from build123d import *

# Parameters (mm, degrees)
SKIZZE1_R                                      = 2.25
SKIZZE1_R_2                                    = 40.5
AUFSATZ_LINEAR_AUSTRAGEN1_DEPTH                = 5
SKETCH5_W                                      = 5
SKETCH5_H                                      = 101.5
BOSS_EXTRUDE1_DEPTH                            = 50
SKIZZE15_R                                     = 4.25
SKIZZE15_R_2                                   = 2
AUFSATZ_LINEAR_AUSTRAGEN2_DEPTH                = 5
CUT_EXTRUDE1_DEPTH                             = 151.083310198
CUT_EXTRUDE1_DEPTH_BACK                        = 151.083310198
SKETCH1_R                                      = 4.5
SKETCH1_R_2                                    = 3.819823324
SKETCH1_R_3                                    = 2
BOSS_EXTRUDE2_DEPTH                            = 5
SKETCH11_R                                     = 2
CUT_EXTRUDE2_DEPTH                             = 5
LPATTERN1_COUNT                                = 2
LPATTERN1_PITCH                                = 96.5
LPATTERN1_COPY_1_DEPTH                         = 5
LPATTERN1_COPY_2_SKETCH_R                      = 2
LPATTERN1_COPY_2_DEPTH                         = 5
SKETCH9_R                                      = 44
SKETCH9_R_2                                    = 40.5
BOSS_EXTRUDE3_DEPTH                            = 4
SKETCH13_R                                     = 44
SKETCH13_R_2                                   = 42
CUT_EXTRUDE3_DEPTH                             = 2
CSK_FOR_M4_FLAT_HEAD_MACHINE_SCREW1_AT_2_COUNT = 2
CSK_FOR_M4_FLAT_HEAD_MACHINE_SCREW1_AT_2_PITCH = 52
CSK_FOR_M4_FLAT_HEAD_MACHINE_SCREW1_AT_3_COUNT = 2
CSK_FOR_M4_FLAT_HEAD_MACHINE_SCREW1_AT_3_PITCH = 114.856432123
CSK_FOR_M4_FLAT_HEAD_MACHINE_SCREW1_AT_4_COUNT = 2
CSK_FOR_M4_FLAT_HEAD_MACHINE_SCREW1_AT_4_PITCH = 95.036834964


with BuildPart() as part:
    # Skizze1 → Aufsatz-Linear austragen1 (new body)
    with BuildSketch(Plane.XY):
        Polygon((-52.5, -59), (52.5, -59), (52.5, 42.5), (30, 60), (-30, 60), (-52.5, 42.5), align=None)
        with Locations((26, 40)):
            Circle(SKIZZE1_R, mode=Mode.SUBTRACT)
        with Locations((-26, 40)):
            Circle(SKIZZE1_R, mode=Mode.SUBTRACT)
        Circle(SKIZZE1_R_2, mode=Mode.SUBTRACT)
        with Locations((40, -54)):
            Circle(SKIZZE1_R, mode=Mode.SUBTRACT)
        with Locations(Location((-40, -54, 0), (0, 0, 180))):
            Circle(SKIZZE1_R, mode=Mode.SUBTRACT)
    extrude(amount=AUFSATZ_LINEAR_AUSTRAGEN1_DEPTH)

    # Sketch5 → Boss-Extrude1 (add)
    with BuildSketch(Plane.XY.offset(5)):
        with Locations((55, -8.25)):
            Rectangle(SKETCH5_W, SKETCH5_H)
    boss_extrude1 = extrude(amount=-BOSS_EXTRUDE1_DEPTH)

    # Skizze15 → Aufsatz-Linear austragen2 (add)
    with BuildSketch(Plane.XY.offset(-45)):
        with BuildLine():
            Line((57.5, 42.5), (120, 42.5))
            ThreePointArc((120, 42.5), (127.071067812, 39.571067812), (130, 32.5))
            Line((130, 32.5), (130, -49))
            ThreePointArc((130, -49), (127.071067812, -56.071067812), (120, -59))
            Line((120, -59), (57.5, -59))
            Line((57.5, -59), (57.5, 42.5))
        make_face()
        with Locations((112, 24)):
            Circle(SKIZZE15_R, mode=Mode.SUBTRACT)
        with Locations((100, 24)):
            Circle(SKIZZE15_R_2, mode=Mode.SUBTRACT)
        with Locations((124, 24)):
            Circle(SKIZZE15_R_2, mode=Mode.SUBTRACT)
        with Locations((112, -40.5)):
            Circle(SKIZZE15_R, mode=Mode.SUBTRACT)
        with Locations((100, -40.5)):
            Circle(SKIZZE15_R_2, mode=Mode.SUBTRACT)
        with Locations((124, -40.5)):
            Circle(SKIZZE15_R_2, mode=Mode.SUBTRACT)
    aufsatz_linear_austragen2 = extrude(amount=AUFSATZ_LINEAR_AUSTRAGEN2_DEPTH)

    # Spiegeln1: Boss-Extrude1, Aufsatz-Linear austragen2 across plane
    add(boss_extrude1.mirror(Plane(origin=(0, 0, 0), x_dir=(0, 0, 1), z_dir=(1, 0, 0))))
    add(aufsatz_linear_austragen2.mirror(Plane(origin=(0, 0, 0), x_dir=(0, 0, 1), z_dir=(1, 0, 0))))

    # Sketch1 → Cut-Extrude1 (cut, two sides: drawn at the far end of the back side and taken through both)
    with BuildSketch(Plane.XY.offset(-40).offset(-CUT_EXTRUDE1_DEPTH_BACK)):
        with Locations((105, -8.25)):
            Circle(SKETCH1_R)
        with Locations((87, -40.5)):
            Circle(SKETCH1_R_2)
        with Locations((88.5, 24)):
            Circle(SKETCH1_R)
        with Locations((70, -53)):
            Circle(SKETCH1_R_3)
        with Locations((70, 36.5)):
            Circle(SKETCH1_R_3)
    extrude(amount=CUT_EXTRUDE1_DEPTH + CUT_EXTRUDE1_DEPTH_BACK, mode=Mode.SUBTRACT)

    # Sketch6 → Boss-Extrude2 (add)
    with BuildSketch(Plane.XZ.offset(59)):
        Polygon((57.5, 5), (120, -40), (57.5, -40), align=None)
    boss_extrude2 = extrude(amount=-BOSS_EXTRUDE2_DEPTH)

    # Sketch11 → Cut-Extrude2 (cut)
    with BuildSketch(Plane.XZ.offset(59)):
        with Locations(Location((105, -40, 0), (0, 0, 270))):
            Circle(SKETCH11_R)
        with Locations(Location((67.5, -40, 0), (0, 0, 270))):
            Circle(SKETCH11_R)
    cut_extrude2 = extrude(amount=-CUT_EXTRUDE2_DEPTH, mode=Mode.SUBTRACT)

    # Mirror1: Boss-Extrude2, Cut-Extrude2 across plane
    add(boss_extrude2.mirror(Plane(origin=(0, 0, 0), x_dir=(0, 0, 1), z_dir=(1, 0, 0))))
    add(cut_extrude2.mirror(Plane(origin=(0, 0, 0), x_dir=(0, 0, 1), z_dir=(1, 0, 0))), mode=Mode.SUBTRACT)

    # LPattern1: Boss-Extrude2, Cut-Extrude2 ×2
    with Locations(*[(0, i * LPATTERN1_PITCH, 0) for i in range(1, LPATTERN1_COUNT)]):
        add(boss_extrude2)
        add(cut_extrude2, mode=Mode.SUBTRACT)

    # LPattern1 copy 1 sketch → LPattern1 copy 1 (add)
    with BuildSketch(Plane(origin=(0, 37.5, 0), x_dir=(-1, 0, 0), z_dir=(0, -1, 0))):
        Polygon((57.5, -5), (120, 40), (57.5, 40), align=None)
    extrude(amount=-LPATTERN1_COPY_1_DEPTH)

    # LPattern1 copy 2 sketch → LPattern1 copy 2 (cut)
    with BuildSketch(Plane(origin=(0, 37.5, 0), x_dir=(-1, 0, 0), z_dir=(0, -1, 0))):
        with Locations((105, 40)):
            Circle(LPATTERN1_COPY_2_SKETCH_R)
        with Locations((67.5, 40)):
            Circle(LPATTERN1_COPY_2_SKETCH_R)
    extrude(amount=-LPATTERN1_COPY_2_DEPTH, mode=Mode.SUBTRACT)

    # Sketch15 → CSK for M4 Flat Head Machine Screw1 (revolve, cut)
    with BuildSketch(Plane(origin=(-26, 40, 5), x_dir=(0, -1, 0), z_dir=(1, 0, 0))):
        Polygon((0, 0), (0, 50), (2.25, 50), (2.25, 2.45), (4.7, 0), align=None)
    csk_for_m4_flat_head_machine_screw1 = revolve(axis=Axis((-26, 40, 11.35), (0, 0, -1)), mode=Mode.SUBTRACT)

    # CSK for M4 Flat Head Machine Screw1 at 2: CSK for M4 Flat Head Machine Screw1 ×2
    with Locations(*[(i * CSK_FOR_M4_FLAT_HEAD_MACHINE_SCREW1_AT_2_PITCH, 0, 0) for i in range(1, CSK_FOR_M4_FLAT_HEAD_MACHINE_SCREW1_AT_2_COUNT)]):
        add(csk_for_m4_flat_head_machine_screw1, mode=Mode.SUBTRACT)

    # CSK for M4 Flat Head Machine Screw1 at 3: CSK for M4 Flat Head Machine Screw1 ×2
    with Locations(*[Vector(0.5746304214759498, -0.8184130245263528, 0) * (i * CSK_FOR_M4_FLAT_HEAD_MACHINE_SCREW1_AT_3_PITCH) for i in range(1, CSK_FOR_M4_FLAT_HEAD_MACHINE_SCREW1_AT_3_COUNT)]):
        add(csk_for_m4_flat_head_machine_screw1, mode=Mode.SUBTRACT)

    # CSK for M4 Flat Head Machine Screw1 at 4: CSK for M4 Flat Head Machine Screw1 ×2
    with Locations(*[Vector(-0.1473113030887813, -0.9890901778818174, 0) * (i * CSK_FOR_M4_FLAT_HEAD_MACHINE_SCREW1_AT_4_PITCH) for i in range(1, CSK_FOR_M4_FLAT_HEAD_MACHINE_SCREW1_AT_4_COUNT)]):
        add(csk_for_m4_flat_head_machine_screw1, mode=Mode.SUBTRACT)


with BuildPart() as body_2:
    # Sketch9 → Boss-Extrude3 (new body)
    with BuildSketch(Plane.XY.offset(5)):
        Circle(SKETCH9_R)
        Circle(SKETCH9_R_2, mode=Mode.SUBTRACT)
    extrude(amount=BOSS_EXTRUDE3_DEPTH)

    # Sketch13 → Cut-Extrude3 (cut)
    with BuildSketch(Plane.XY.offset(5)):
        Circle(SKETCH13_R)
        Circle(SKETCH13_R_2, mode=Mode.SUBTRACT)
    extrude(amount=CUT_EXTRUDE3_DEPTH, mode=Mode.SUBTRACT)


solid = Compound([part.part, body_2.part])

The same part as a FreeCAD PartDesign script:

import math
import FreeCAD as App
import Part
import Sketcher

V = App.Vector
Q = App.Units.Quantity


def add_polygon(sketch, points):
    """Adds a closed chain of lines whose ends are joined by coincident constraints."""
    first, n = sketch.GeometryCount, len(points)
    for a, b in zip(points, points[1:] + points[:1]):
        sketch.addGeometry(Part.LineSegment(App.Vector(*a, 0), App.Vector(*b, 0)), False)
    for i in range(n):
        sketch.addConstraint(Sketcher.Constraint("Coincident", first + i, 2, first + (i + 1) % n, 1))

doc = App.newDocument("Part")
body = doc.addObject("PartDesign::Body", "Body")

# Sketch on XY plane
sketch1 = body.newObject("Sketcher::SketchObject", "Sketch")
sketch1.AttachmentSupport = (doc.getObject("XY_Plane"), [""])
sketch1.MapMode = "FlatFace"
add_polygon(sketch1, [(-52.5, -59), (52.5, -59), (52.5, 42.5), (30, 60), (-30, 60), (-52.5, 42.5)])  # lines 0-5
sketch1.addGeometry(Part.Circle(V(-40, -54, 0), V(0, 0, 1), 2.2), False)  # 6
sketch1.addGeometry(Part.Circle(V(40, -54, 0), V(0, 0, 1), 2.2), False)  # 7
sketch1.addGeometry(Part.Circle(V(-26, 40, 0), V(0, 0, 1), 2.2), False)  # 8
sketch1.addGeometry(Part.Circle(V(0, 0, 0), V(0, 0, 1), 40.5), False)  # 9
sketch1.addGeometry(Part.Circle(V(26, 40, 0), V(0, 0, 1), 2.2), False)  # 10
sketch1.addConstraint([
    Sketcher.Constraint("Horizontal", 0),
    Sketcher.Constraint("Vertical", 1),
    Sketcher.Constraint("Horizontal", 3),
    Sketcher.Constraint("Vertical", 5),
    Sketcher.Constraint("Coincident", 9, 3, -1, 1),
    Sketcher.Constraint("Equal", 6, 7),
    Sketcher.Constraint("Equal", 7, 8),
    Sketcher.Constraint("Equal", 8, 10),
    Sketcher.Constraint("Symmetric", 6, 3, 7, 3, -2),
    Sketcher.Constraint("Symmetric", 8, 3, 10, 3, -2),
    Sketcher.Constraint("Symmetric", 1, 2, 4, 2, -2),
    Sketcher.Constraint("Equal", 2, 4),
    Sketcher.Constraint("Diameter", 9, 81.0),
    Sketcher.Constraint("Diameter", 6, 4.5),
    Sketcher.Constraint("DistanceX", 0, 1, 0, 2, 105.0),
    Sketcher.Constraint("DistanceX", 3, 2, 3, 1, 60.0),
    Sketcher.Constraint("DistanceY", 1, 1, 1, 2, 101.5),
    Sketcher.Constraint("DistanceX", 6, 3, -1, 1, 40.0),
    Sketcher.Constraint("DistanceY", 6, 3, -1, 1, 54.0),
    Sketcher.Constraint("DistanceX", 8, 3, -1, 1, 26.0),
    Sketcher.Constraint("DistanceY", -1, 1, 8, 3, 40.0),
    Sketcher.Constraint("DistanceY", 0, 2, -1, 1, 59.0),
    Sketcher.Constraint("DistanceY", -1, 1, 2, 2, 60.0),
])
pad1 = body.newObject("PartDesign::Pad", "Pad")
pad1.Profile = sketch1
pad1.Length = 5

# Sketch on XY plane
sketch2 = body.newObject("Sketcher::SketchObject", "Sketch001")
sketch2.AttachmentSupport = (doc.getObject("XY_Plane"), [""])
sketch2.MapMode = "FlatFace"
sketch2.AttachmentOffset = App.Placement(V(0, 0, 5), App.Rotation())
add_polygon(sketch2, [(52, 42), (52, -59), (58, -59), (58, 42)])  # lines 0-3
sketch2.addConstraint([
    Sketcher.Constraint("Vertical", 0),
    Sketcher.Constraint("Horizontal", 1),
    Sketcher.Constraint("Vertical", 2),
    Sketcher.Constraint("Horizontal", 3),
    Sketcher.Constraint("DistanceX", 1, 1, 1, 2, 5.0),
    Sketcher.Constraint("DistanceY", 0, 2, 0, 1, 101.5),
    Sketcher.Constraint("DistanceY", 0, 2, -1, 1, 59.0),
    Sketcher.Constraint("DistanceX", -1, 1, 0, 2, 52.5),
])
pad2 = body.newObject("PartDesign::Pad", "Pad001")
pad2.Profile = sketch2
pad2.Length = 50
pad2.Reversed = True

# Sketch on XY plane
sketch3 = body.newObject("Sketcher::SketchObject", "Sketch002")
sketch3.AttachmentSupport = (doc.getObject("XY_Plane"), [""])
sketch3.MapMode = "FlatFace"
sketch3.AttachmentOffset = App.Placement(V(0, 0, -45), App.Rotation())
sketch3.addGeometry([
    Part.LineSegment(V(120, 42.5, 0), V(57.5, 42.5, 0)),  # 0
    Part.LineSegment(V(57.5, 42.5, 0), V(57.5, -59, 0)),  # 1
    Part.LineSegment(V(57.5, -59, 0), V(120, -59, 0)),  # 2
    Part.ArcOfCircle(Part.Circle(V(120, -49, 0), V(0, 0, 1), 10), math.radians(-90), math.radians(0)),  # 3
    Part.LineSegment(V(130, -49, 0), V(130, 32.5, 0)),  # 4
    Part.ArcOfCircle(Part.Circle(V(120, 32.5, 0), V(0, 0, 1), 10), math.radians(0), math.radians(90)),  # 5
    Part.Circle(V(124, -40.5, 0), V(0, 0, 1), 2),  # 6
    Part.Circle(V(112, -40.5, 0), V(0, 0, 1), 4.2),  # 7
    Part.Circle(V(100, -40.5, 0), V(0, 0, 1), 2),  # 8
    Part.Circle(V(124, 24, 0), V(0, 0, 1), 2),  # 9
    Part.Circle(V(112, 24, 0), V(0, 0, 1), 4.2),  # 10
    Part.Circle(V(100, 24, 0), V(0, 0, 1), 2),  # 11
], False)
sketch3.addConstraint([
    Sketcher.Constraint("Coincident", 0, 2, 1, 1),
    Sketcher.Constraint("Coincident", 1, 2, 2, 1),
    Sketcher.Constraint("Tangent", 2, 2, 3, 1),
    Sketcher.Constraint("Tangent", 3, 2, 4, 1),
    Sketcher.Constraint("Tangent", 4, 2, 5, 1),
    Sketcher.Constraint("Tangent", 5, 2, 0, 1),
    Sketcher.Constraint("Horizontal", 0),
    Sketcher.Constraint("Vertical", 1),
    Sketcher.Constraint("Horizontal", 2),
    Sketcher.Constraint("Vertical", 4),
    Sketcher.Constraint("Equal", 3, 5),
    Sketcher.Constraint("Equal", 6, 8),
    Sketcher.Constraint("Equal", 8, 9),
    Sketcher.Constraint("Equal", 7, 10),
    Sketcher.Constraint("Equal", 9, 11),
    Sketcher.Constraint("Horizontal", 6, 3, 7, 3),
    Sketcher.Constraint("Horizontal", 7, 3, 8, 3),
    Sketcher.Constraint("Horizontal", 9, 3, 10, 3),
    Sketcher.Constraint("Horizontal", 10, 3, 11, 3),
    Sketcher.Constraint("Vertical", 6, 3, 9, 3),
    Sketcher.Constraint("Vertical", 7, 3, 10, 3),
    Sketcher.Constraint("Vertical", 8, 3, 11, 3),
    Sketcher.Constraint("Diameter", 6, 4.0),
    Sketcher.Constraint("Radius", 3, 10.0),
    Sketcher.Constraint("Diameter", 7, 8.5),
    Sketcher.Constraint("DistanceX", 0, 2, 0, 1, 62.5),
    Sketcher.Constraint("DistanceY", 1, 2, 1, 1, 101.5),
    Sketcher.Constraint("DistanceX", -1, 1, 3, 3, 120.0),
    Sketcher.Constraint("DistanceY", 3, 3, -1, 1, 49.0),
    Sketcher.Constraint("DistanceX", -1, 1, 6, 3, 124.0),
    Sketcher.Constraint("DistanceX", -1, 1, 7, 3, 112.0),
    Sketcher.Constraint("DistanceX", -1, 1, 8, 3, 100.0),
    Sketcher.Constraint("DistanceY", -1, 1, 9, 3, 24.0),
    Sketcher.Constraint("DistanceY", 6, 3, 5, 3, 73.0),
])
pad3 = body.newObject("PartDesign::Pad", "Pad002")
pad3.Profile = sketch3
pad3.Length = 5
doc.recompute()

mirrored = body.newObject("PartDesign::Mirrored", "Mirrored")
mirrored.Originals = [pad2, pad3]
mirrored.MirrorPlane = (doc.getObject("YZ_Plane"), [""])
body.Tip = mirrored

# Sketch on XY plane
sketch4 = body.newObject("Sketcher::SketchObject", "Sketch003")
sketch4.AttachmentSupport = (doc.getObject("XY_Plane"), [""])
sketch4.MapMode = "FlatFace"
sketch4.AttachmentOffset = App.Placement(V(0, 0, -40), App.Rotation())
sketch4.addGeometry([
    Part.Circle(V(105, -8.2, 0), V(0, 0, 1), 4.5),  # 0
    Part.Circle(V(87, -40.5, 0), V(0, 0, 1), 3.8),  # 1
    Part.Circle(V(88.5, 24, 0), V(0, 0, 1), 4.5),  # 2
    Part.Circle(V(70, -53, 0), V(0, 0, 1), 2),  # 3
    Part.Circle(V(70, 36.5, 0), V(0, 0, 1), 2),  # 4
], False)
sketch4.addConstraint([
    Sketcher.Constraint("Equal", 0, 2),
    Sketcher.Constraint("Equal", 3, 4),
    Sketcher.Constraint("Vertical", 3, 3, 4, 3),
    Sketcher.Constraint("Diameter", 0, 9.0),
    Sketcher.Constraint("Diameter", 3, 4.0),
    Sketcher.Constraint("DistanceX", -1, 1, 0, 3, 105.0),
    Sketcher.Constraint("DistanceX", -1, 1, 1, 3, 87.0),
    Sketcher.Constraint("DistanceY", -1, 1, 2, 3, 24.0),
    Sketcher.Constraint("DistanceX", -1, 1, 3, 3, 70.0),
    Sketcher.Constraint("DistanceY", 3, 3, -1, 1, 53.0),
    Sketcher.Constraint("DistanceY", 1, 3, 4, 3, 77.0),
    Sketcher.Constraint("DistanceY", 1, 3, -1, 1, 40.5),
    Sketcher.Constraint("DistanceX", -1, 1, 2, 3, 88.5),
    Sketcher.Constraint("DistanceY", 0, 3, -1, 1, 8.25),
    Sketcher.Constraint("Diameter", 1, 7.639647),
])
pocket1 = body.newObject("PartDesign::Pocket", "Pocket")
pocket1.Profile = sketch4
pocket1.Type = "ThroughAll"
pocket1.Midplane = True

# Sketch on XZ plane
sketch5 = body.newObject("Sketcher::SketchObject", "Sketch004")
sketch5.AttachmentSupport = (doc.getObject("XZ_Plane"), [""])
sketch5.MapMode = "FlatFace"
sketch5.AttachmentOffset = App.Placement(V(0, 0, 59), App.Rotation())
add_polygon(sketch5, [(120, -40), (58, 5), (58, -40)])  # lines 0-2
sketch5.addConstraint([
    Sketcher.Constraint("Vertical", 1),
    Sketcher.Constraint("Horizontal", 2),
    Sketcher.Constraint("DistanceY", 1, 2, 1, 1, 45.0),
    Sketcher.Constraint("DistanceX", 2, 1, 2, 2, 62.5),
    Sketcher.Constraint("DistanceY", -1, 1, 0, 2, 5.0),
    Sketcher.Constraint("DistanceX", -1, 1, 2, 2, 120.0),
])
pad4 = body.newObject("PartDesign::Pad", "Pad003")
pad4.Profile = sketch5
pad4.Length = 5
pad4.Reversed = True

# Sketch on XZ plane
sketch6 = body.newObject("Sketcher::SketchObject", "Sketch005")
sketch6.AttachmentSupport = (doc.getObject("XZ_Plane"), [""])
sketch6.MapMode = "FlatFace"
sketch6.AttachmentOffset = App.Placement(V(0, 0, 59), App.Rotation())
sketch6.addGeometry([
    Part.Circle(V(105, -40, 0), V(0, 0, 1), 2),
    Part.Circle(V(67.5, -40, 0), V(0, 0, 1), 2),
], False)
sketch6.addConstraint([
    Sketcher.Constraint("Equal", 0, 1),
    Sketcher.Constraint("Horizontal", 0, 3, 1, 3),
    Sketcher.Constraint("Diameter", 0, 4.0),
    Sketcher.Constraint("DistanceX", -1, 1, 0, 3, 105.0),
    Sketcher.Constraint("DistanceY", 0, 3, -1, 1, 40.0),
    Sketcher.Constraint("DistanceX", -1, 1, 1, 3, 67.5),
])
pocket2 = body.newObject("PartDesign::Pocket", "Pocket001")
pocket2.Profile = sketch6
pocket2.Length = 5
doc.recompute()

mirrored2 = body.newObject("PartDesign::Mirrored", "Mirrored001")
mirrored2.Originals = [pad4, pocket2]
mirrored2.MirrorPlane = (doc.getObject("YZ_Plane"), [""])
body.Tip = mirrored2
doc.recompute()

linearpattern = body.newObject("PartDesign::LinearPattern", "LinearPattern")
linearpattern.Originals = [pad4, pocket2]
linearpattern.Direction = (doc.getObject("Y_Axis"), [""])
linearpattern.Mode = "offset"
linearpattern.Offset = 96.5
linearpattern.Occurrences = 2
body.Tip = linearpattern

# Sketch on XZ plane
sketch7 = body.newObject("Sketcher::SketchObject", "Sketch006")
sketch7.AttachmentSupport = (doc.getObject("XZ_Plane"), [""])
sketch7.MapMode = "FlatFace"
sketch7.AttachmentOffset = App.Placement(V(0, 0, -37.5), App.Rotation())
add_polygon(sketch7, [(-58, 5), (-120, -40), (-58, -40)])  # lines 0-2
sketch7.addConstraint([
    Sketcher.Constraint("Horizontal", 1),
    Sketcher.Constraint("Vertical", 2),
    Sketcher.Constraint("DistanceY", 2, 1, 2, 2, 45.0),
    Sketcher.Constraint("DistanceX", 1, 1, 1, 2, 62.5),
    Sketcher.Constraint("DistanceX", 0, 2, -1, 1, 120.0),
    Sketcher.Constraint("DistanceY", 0, 2, -1, 1, 40.0),
])
pad5 = body.newObject("PartDesign::Pad", "Pad004")
pad5.Profile = sketch7
pad5.Length = 5
pad5.Reversed = True

# Sketch on XZ plane
sketch8 = body.newObject("Sketcher::SketchObject", "Sketch007")
sketch8.AttachmentSupport = (doc.getObject("XZ_Plane"), [""])
sketch8.MapMode = "FlatFace"
sketch8.AttachmentOffset = App.Placement(V(0, 0, -37.5), App.Rotation())
sketch8.addGeometry([
    Part.Circle(V(-105, -40, 0), V(0, 0, 1), 2),
    Part.Circle(V(-67.5, -40, 0), V(0, 0, 1), 2),
], False)
sketch8.addConstraint([
    Sketcher.Constraint("Equal", 0, 1),
    Sketcher.Constraint("Horizontal", 0, 3, 1, 3),
    Sketcher.Constraint("Diameter", 0, 4.0),
    Sketcher.Constraint("DistanceX", 0, 3, -1, 1, 105.0),
    Sketcher.Constraint("DistanceY", 0, 3, -1, 1, 40.0),
    Sketcher.Constraint("DistanceX", 1, 3, -1, 1, 67.5),
])
pocket3 = body.newObject("PartDesign::Pocket", "Pocket002")
pocket3.Profile = sketch8
pocket3.Length = 5

# Sketch on YZ plane
sketch9 = body.newObject("Sketcher::SketchObject", "Sketch008")
sketch9.AttachmentSupport = (doc.getObject("YZ_Plane"), [""])
sketch9.MapMode = "FlatFace"
sketch9.AttachmentOffset = App.Placement(V(0, 0, -26), App.Rotation())
add_polygon(sketch9, [(40, -45), (40, 5), (35.3, 5), (37.8, 2.5), (37.8, -45)])  # lines 0-4
sketch9.addGeometry(Part.LineSegment(V(40, 5, 0), V(40, -45, 0)), True)  # axis
sketch9.addConstraint([
    Sketcher.Constraint("Vertical", 0),
    Sketcher.Constraint("Horizontal", 1),
    Sketcher.Constraint("Vertical", 3),
    Sketcher.Constraint("Horizontal", 4),
    Sketcher.Constraint("Vertical", 5),
    Sketcher.Constraint("Coincident", 5, 1, 0, 2),
    Sketcher.Constraint("Horizontal", 3, 2, 5, 2),
    Sketcher.Constraint("DistanceY", 0, 1, 0, 2, 50.0),
    Sketcher.Constraint("Angle", 2, Q("-45 deg")),
    Sketcher.Constraint("DistanceX", 1, 2, 1, 1, 4.7),
    Sketcher.Constraint("DistanceX", -1, 1, 0, 2, 40.0),
    Sketcher.Constraint("DistanceY", -1, 1, 0, 2, 5.0),
    Sketcher.Constraint("DistanceX", 4, 1, 4, 2, 2.25),
])
groove = body.newObject("PartDesign::Groove", "Groove")
groove.Profile = sketch9
groove.ReferenceAxis = (sketch9, ["Axis0"])
groove.Angle = 360
doc.recompute()

linearpattern2 = body.newObject("PartDesign::LinearPattern", "LinearPattern001")
linearpattern2.Originals = [groove]
linearpattern2.Direction = (doc.getObject("X_Axis"), [""])
linearpattern2.Mode = "offset"
linearpattern2.Offset = 52
linearpattern2.Occurrences = 2
body.Tip = linearpattern2
doc.recompute()

datumline = body.newObject("PartDesign::Line", "DatumLine")
datumline.Placement = App.Placement(V(0, 0, 0), App.Rotation(V(0, 0, 1), V(0.574630421, -0.818413025, 0)))
linearpattern3 = body.newObject("PartDesign::LinearPattern", "LinearPattern002")
linearpattern3.Originals = [groove]
linearpattern3.Direction = (datumline, [""])
linearpattern3.Mode = "offset"
linearpattern3.Offset = 114.856432
linearpattern3.Occurrences = 2
body.Tip = linearpattern3
doc.recompute()

datumline2 = body.newObject("PartDesign::Line", "DatumLine001")
datumline2.Placement = App.Placement(V(0, 0, 0), App.Rotation(V(0, 0, 1), V(-0.147311303, -0.989090178, 0)))
linearpattern4 = body.newObject("PartDesign::LinearPattern", "LinearPattern003")
linearpattern4.Originals = [groove]
linearpattern4.Direction = (datumline2, [""])
linearpattern4.Mode = "offset"
linearpattern4.Offset = 95.036835
linearpattern4.Occurrences = 2
body.Tip = linearpattern4
body2 = doc.addObject("PartDesign::Body", "Body001")

# Sketch on XY plane
sketch10 = body2.newObject("Sketcher::SketchObject", "Sketch009")
sketch10.AttachmentSupport = (doc.getObject("XY_Plane001"), [""])
sketch10.MapMode = "FlatFace"
sketch10.AttachmentOffset = App.Placement(V(0, 0, 5), App.Rotation())
sketch10.addGeometry([
    Part.Circle(V(0, 0, 0), V(0, 0, 1), 44),
    Part.Circle(V(0, 0, 0), V(0, 0, 1), 40),
], False)
sketch10.addConstraint([
    Sketcher.Constraint("Coincident", 0, 3, -1, 1),
    Sketcher.Constraint("Coincident", 1, 3, -1, 1),
    Sketcher.Constraint("Diameter", 0, 88.0),
    Sketcher.Constraint("Diameter", 1, 81.0),
])
pad6 = body2.newObject("PartDesign::Pad", "Pad005")
pad6.Profile = sketch10
pad6.Length = 4

# Sketch on XY plane
sketch11 = body2.newObject("Sketcher::SketchObject", "Sketch010")
sketch11.AttachmentSupport = (doc.getObject("XY_Plane001"), [""])
sketch11.MapMode = "FlatFace"
sketch11.AttachmentOffset = App.Placement(V(0, 0, 5), App.Rotation())
sketch11.addGeometry([
    Part.Circle(V(0, 0, 0), V(0, 0, 1), 44),
    Part.Circle(V(0, 0, 0), V(0, 0, 1), 42),
], False)
sketch11.addConstraint([
    Sketcher.Constraint("Coincident", 0, 3, -1, 1),
    Sketcher.Constraint("Coincident", 1, 3, -1, 1),
    Sketcher.Constraint("Diameter", 0, 88.0),
    Sketcher.Constraint("Diameter", 1, 84.0),
])
pocket4 = body2.newObject("PartDesign::Pocket", "Pocket003")
pocket4.Profile = sketch11
pocket4.Length = 2
pocket4.Reversed = True

doc.recompute()
